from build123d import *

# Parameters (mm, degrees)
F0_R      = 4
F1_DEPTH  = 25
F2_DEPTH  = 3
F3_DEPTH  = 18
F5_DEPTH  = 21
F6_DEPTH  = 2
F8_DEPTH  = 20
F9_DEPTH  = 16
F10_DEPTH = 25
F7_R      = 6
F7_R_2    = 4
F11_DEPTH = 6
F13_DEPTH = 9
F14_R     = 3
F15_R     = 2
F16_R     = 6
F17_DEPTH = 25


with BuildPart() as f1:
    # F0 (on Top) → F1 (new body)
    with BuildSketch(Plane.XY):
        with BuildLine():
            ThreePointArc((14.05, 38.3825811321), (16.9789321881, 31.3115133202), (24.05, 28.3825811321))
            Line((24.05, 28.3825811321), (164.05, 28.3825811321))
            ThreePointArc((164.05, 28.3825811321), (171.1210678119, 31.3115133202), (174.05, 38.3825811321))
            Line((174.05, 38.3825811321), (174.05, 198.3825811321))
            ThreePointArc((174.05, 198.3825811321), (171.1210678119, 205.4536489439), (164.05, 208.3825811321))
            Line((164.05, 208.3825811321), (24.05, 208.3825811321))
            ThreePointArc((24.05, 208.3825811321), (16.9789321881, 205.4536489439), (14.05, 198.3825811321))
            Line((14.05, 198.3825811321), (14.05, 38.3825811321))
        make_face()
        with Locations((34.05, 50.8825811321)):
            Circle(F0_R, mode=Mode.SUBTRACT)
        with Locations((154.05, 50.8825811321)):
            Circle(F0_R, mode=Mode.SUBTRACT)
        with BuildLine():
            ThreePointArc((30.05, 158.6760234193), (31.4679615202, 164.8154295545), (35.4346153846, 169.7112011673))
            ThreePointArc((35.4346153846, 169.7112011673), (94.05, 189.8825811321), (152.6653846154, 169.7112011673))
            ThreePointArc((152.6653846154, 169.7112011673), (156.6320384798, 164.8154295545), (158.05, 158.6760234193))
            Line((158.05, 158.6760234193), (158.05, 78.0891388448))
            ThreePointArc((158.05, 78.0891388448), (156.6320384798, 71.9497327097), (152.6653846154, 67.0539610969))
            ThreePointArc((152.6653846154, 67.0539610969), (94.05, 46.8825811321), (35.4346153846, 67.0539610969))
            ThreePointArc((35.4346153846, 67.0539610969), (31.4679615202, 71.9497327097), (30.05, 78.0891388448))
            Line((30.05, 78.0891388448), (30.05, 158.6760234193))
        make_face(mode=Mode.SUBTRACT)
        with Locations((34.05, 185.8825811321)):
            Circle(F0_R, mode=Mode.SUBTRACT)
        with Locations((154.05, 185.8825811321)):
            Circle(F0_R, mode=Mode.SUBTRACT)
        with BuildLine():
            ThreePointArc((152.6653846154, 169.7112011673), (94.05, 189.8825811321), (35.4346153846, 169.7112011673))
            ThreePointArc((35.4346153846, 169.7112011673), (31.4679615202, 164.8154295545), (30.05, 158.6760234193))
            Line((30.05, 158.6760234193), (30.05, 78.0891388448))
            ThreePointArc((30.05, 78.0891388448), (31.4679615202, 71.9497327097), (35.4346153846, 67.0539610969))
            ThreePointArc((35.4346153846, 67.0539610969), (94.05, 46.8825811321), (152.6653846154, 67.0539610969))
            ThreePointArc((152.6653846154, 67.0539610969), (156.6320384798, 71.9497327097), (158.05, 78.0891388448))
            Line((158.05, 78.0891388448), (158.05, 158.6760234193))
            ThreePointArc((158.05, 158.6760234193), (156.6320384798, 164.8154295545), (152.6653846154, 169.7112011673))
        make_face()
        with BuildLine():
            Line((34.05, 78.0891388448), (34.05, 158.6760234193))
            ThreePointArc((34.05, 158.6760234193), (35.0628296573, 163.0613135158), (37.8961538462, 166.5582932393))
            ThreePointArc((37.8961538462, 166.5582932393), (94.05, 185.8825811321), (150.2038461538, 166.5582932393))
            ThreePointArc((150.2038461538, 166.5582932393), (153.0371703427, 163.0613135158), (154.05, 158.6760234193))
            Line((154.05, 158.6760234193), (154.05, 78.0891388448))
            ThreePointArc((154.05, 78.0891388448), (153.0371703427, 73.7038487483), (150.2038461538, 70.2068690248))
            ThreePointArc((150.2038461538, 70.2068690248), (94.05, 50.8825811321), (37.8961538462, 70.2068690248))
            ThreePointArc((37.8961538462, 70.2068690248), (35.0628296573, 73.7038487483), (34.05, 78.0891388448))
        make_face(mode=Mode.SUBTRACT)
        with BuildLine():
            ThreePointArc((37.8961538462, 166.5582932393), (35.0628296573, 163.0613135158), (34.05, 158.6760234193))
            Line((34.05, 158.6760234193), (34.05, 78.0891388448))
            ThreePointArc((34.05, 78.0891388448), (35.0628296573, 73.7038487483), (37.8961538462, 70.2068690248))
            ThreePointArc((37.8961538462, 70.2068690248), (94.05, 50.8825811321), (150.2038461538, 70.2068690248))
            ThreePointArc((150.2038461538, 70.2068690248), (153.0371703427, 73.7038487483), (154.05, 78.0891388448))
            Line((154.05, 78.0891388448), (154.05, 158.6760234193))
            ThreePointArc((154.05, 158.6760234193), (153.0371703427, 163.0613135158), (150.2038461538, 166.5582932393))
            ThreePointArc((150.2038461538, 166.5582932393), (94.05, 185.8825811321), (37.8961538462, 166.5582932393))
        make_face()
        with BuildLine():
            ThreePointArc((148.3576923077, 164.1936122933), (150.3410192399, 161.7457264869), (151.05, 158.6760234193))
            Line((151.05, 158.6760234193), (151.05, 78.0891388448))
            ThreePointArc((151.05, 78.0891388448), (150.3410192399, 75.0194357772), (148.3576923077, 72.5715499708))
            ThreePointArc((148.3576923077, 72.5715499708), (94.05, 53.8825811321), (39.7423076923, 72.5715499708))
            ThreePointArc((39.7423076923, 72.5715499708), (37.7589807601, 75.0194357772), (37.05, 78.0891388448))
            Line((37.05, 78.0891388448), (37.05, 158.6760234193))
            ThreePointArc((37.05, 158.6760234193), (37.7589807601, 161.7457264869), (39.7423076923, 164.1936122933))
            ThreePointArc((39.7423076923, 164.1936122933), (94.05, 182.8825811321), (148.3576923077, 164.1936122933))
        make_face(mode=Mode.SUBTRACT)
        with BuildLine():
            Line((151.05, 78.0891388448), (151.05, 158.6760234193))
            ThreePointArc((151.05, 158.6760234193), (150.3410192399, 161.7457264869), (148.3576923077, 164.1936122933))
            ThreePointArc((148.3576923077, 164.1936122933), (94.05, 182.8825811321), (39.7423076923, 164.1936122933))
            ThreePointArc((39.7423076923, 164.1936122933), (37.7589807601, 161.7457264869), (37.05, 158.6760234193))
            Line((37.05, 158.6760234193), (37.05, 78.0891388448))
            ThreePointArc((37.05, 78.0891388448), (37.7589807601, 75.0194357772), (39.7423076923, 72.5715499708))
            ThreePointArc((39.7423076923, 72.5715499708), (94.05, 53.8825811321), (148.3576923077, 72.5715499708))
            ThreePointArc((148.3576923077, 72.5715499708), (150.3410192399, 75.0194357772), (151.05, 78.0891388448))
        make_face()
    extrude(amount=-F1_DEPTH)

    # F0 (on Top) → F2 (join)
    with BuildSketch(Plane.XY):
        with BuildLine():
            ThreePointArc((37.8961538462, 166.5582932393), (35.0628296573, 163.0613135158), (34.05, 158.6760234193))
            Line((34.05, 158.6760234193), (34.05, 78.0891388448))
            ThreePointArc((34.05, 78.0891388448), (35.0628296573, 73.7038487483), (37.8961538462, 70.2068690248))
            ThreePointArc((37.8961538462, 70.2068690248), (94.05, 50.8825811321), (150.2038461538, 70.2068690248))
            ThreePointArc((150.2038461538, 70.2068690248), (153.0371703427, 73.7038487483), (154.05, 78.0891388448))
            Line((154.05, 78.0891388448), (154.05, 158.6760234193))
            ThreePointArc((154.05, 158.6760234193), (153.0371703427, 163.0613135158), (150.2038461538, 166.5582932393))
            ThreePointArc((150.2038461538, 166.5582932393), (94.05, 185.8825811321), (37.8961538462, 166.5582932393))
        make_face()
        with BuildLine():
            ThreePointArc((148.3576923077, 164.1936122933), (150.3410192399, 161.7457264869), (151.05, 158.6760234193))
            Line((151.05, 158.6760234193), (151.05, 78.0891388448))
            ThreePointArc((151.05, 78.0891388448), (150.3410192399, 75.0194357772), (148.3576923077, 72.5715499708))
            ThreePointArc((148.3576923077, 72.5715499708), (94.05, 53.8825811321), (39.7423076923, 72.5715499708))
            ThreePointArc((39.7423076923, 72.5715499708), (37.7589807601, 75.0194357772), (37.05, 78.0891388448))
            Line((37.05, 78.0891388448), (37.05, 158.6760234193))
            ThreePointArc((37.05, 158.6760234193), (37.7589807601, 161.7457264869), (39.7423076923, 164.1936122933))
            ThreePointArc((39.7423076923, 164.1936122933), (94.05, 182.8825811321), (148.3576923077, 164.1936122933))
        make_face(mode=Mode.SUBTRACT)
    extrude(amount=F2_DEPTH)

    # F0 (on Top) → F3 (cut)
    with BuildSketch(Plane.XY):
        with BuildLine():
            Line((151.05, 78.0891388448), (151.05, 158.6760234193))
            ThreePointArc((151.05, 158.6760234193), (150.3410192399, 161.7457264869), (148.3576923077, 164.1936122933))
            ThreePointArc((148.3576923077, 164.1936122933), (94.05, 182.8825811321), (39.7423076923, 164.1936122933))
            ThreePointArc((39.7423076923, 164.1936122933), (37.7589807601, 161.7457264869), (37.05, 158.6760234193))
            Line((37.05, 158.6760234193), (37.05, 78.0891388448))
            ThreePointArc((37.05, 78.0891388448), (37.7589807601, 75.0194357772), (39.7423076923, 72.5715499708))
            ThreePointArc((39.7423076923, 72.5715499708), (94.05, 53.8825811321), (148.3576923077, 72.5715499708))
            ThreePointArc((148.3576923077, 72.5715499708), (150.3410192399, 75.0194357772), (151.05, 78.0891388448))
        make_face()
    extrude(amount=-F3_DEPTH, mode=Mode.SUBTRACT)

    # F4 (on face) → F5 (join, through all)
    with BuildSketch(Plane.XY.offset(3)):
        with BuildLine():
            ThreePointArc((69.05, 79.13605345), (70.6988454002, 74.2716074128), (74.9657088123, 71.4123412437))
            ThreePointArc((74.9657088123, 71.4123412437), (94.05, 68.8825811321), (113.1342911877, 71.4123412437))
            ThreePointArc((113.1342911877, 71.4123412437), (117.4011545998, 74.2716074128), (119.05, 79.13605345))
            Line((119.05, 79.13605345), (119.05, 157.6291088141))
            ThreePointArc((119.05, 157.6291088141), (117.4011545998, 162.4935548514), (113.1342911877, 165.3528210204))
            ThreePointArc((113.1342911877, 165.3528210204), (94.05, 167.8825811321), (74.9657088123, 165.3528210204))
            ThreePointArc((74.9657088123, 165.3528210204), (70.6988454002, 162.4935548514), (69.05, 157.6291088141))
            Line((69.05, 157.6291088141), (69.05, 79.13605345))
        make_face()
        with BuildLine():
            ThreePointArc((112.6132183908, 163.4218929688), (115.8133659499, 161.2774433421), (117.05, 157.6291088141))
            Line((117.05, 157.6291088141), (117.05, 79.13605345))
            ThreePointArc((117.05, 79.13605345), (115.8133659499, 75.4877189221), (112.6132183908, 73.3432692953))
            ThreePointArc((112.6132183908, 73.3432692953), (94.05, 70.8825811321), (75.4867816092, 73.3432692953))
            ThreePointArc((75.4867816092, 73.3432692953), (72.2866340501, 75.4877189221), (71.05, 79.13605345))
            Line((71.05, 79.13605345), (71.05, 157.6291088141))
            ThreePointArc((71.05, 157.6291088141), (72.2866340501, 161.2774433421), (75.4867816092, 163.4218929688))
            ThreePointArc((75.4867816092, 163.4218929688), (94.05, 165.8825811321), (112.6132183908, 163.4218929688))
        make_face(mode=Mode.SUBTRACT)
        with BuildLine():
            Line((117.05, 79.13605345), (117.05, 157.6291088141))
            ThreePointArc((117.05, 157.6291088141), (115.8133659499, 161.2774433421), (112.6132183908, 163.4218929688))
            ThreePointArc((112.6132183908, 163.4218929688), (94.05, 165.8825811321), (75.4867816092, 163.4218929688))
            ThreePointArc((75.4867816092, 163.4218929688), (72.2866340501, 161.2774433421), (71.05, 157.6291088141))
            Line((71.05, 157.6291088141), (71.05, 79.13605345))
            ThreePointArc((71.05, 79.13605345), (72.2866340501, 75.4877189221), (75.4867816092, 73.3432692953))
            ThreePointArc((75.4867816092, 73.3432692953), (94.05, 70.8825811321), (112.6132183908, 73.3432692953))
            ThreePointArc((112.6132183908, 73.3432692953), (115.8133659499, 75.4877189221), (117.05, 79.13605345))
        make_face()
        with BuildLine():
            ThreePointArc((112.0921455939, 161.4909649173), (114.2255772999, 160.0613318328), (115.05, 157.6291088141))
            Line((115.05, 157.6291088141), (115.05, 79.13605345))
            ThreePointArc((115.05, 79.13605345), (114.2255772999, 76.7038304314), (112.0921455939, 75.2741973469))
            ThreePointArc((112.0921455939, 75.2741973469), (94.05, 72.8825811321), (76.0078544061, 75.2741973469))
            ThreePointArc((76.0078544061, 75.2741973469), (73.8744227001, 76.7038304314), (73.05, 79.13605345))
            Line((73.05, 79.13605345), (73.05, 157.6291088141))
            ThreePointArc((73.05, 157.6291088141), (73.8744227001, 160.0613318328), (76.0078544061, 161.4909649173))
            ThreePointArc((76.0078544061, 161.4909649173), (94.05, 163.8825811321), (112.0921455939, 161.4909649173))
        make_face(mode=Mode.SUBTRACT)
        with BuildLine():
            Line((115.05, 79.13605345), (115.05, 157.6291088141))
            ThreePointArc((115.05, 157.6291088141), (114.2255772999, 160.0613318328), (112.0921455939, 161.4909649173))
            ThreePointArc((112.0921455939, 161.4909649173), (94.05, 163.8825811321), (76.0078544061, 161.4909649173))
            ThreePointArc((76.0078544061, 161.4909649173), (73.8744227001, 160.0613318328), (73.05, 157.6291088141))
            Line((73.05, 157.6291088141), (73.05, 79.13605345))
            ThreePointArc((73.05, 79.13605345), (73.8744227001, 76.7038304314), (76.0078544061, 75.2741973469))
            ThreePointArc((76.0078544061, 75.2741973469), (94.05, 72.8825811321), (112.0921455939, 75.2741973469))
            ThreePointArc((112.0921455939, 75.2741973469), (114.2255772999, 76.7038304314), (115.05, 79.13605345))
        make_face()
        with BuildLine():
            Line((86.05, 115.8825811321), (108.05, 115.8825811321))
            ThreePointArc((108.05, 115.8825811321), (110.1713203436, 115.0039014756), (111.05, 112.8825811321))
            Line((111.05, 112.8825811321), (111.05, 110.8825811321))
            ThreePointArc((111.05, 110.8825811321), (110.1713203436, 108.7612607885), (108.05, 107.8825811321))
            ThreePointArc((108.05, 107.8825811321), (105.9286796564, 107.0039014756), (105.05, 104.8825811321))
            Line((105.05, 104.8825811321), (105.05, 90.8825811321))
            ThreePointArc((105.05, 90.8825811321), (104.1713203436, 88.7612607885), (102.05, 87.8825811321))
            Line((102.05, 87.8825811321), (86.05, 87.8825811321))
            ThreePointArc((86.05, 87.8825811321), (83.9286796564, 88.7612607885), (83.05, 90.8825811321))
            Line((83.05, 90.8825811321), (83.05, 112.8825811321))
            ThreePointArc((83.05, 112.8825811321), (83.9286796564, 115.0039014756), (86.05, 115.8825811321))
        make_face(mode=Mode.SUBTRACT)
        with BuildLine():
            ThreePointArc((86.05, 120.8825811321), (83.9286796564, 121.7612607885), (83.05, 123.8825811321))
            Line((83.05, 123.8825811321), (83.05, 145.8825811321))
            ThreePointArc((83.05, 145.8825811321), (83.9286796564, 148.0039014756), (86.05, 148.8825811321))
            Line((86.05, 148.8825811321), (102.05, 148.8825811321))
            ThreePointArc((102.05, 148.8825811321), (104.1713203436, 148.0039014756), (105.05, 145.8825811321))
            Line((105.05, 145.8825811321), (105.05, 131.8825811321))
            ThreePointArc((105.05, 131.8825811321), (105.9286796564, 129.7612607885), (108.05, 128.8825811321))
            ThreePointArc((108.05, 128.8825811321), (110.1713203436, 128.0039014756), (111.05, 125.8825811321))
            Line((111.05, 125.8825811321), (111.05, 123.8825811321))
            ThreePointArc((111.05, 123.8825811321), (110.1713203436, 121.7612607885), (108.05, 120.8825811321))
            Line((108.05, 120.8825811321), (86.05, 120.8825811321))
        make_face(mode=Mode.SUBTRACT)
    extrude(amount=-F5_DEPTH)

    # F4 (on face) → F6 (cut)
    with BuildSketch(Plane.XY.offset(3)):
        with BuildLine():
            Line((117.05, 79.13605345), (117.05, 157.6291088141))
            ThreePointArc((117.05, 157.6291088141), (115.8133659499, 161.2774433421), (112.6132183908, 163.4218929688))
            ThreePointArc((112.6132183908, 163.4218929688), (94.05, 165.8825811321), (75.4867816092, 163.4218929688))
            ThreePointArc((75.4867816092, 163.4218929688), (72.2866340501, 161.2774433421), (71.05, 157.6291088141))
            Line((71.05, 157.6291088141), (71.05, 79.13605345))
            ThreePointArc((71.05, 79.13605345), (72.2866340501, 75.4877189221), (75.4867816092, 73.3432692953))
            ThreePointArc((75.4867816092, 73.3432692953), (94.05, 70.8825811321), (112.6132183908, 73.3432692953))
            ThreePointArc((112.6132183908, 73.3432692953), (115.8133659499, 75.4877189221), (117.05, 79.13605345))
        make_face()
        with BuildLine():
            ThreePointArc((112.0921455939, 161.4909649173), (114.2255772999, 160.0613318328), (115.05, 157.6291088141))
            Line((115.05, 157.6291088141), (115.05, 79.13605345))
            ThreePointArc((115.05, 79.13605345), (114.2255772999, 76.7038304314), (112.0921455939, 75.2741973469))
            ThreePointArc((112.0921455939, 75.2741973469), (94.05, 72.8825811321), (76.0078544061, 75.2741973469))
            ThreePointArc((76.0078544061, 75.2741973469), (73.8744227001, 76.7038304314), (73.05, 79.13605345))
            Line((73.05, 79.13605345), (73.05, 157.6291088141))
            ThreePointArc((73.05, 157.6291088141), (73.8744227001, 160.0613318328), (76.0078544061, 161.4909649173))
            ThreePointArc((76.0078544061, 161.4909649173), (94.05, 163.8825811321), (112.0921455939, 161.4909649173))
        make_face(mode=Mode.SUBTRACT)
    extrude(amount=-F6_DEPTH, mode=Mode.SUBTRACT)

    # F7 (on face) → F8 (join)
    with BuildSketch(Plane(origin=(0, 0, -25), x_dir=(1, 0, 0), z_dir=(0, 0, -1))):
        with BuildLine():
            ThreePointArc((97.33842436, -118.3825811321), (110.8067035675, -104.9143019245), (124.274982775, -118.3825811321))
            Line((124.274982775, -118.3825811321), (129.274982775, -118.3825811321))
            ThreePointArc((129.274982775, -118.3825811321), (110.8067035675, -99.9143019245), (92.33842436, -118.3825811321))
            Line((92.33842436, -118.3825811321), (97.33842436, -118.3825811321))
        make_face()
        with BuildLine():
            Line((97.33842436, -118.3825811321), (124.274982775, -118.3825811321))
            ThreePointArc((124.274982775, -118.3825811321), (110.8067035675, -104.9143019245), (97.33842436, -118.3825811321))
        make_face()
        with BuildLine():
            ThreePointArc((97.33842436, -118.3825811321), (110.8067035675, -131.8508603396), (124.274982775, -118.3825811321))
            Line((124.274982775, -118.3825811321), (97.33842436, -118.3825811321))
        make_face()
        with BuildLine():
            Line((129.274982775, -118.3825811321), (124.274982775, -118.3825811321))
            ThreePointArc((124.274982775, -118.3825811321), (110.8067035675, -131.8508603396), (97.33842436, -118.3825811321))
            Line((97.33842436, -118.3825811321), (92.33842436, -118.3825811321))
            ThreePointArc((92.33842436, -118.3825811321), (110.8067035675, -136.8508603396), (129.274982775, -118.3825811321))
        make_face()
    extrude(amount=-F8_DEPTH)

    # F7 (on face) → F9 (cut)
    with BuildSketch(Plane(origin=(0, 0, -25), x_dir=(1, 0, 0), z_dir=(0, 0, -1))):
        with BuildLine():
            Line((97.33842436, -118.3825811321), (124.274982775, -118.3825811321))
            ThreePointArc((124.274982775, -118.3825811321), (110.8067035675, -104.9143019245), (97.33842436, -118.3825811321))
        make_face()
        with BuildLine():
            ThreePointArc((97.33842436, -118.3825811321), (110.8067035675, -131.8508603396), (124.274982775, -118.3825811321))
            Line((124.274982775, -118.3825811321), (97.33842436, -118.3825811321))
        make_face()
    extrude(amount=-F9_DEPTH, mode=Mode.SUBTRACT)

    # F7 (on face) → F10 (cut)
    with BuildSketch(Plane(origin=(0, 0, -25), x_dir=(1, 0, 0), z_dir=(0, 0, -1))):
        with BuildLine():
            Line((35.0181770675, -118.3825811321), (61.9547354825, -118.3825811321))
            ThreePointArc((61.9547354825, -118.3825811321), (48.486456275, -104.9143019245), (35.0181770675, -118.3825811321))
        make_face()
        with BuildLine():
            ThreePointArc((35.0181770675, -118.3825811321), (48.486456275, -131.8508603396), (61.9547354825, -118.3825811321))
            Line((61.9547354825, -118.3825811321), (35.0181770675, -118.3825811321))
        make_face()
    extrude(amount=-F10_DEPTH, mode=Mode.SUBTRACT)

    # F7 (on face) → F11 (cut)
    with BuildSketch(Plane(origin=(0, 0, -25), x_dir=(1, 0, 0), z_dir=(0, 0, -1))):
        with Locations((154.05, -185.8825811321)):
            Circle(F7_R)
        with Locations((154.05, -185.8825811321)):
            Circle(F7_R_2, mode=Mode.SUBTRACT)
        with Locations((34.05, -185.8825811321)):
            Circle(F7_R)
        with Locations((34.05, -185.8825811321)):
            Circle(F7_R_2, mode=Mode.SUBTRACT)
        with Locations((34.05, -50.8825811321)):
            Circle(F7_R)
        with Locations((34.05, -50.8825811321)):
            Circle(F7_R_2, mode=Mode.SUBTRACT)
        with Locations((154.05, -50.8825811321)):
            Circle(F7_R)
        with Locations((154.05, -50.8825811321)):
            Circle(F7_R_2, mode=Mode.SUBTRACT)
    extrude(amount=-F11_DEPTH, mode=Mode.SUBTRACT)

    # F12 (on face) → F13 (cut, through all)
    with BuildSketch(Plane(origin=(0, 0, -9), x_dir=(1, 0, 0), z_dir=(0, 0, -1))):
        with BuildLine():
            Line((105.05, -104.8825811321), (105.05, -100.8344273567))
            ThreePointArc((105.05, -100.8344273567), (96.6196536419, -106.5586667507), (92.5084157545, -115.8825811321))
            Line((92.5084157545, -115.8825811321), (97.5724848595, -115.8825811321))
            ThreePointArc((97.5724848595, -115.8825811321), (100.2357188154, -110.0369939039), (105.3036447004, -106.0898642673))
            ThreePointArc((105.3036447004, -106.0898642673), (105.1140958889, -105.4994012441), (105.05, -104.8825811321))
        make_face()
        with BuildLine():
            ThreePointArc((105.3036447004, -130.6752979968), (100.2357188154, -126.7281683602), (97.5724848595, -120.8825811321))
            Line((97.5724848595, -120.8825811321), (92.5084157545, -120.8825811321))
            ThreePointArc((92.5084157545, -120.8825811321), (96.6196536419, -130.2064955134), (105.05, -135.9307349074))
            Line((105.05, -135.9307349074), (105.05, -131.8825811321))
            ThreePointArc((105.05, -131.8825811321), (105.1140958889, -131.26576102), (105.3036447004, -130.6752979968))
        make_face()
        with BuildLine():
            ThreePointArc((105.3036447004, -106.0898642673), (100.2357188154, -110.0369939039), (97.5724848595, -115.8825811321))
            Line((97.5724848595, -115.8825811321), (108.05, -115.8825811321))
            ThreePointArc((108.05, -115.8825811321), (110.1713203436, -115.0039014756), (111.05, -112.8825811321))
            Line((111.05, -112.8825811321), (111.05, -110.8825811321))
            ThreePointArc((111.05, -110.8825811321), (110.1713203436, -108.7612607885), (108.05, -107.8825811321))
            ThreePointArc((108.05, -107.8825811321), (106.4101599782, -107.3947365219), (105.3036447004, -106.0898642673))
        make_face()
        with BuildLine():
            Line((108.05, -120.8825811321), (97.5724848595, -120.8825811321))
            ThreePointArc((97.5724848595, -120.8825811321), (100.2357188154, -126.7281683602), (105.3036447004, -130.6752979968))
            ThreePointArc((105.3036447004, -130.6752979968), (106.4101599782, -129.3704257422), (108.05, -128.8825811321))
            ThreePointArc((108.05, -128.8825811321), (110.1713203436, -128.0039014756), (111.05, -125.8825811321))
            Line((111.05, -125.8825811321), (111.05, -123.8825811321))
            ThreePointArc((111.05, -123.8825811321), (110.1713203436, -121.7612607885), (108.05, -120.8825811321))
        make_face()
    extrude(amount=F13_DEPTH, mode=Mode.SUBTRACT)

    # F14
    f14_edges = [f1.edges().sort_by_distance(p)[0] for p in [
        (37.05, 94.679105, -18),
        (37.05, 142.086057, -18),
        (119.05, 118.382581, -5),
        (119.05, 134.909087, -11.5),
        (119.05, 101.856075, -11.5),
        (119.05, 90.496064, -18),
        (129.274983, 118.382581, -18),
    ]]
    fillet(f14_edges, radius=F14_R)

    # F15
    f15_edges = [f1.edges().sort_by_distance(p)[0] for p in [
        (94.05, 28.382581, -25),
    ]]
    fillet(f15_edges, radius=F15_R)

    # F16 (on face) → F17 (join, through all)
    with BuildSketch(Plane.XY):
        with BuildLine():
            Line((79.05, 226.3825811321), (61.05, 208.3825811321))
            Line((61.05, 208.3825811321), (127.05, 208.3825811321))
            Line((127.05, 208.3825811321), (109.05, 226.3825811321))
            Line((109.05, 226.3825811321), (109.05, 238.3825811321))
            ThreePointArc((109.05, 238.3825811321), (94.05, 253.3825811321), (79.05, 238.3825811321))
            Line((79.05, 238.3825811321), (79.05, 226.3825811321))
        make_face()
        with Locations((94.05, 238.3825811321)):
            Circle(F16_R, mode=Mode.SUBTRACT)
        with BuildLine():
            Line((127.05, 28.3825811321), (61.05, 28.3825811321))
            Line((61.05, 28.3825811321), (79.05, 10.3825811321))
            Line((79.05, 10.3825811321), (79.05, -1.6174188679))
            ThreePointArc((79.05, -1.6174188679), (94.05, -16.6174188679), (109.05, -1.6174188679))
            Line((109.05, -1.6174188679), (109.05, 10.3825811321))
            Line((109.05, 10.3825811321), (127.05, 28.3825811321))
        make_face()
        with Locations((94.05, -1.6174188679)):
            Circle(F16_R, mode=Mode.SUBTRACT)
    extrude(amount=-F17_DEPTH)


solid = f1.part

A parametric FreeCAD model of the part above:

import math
import FreeCAD as App
import Part
import Sketcher

V = App.Vector
Q = App.Units.Quantity


def edges_at(feature, points):
    """Names of the edges that pass closest to the given points."""
    edges = feature.Shape.Edges
    near = lambda p: min(range(len(edges)), key=lambda i: edges[i].distToShape(Part.Vertex(*p))[0])
    return sorted({f"Edge{near(p) + 1}" for p in points})

doc = App.newDocument("Part")
body = doc.addObject("PartDesign::Body", "Body")

# Sketch on XY plane
sketch1 = body.newObject("Sketcher::SketchObject", "Sketch")
sketch1.AttachmentSupport = (doc.getObject("XY_Plane"), [""])
sketch1.MapMode = "FlatFace"
sketch1.addGeometry([
    Part.ArcOfCircle(Part.Circle(V(24.1, 38.4, 0), V(0, 0, 1), 10), math.radians(180), math.radians(270)),  # 0
    Part.LineSegment(V(24.1, 28.4, 0), V(164.1, 28.4, 0)),  # 1
    Part.ArcOfCircle(Part.Circle(V(164.1, 38.4, 0), V(0, 0, 1), 10), math.radians(-90), math.radians(0)),  # 2
    Part.LineSegment(V(174.1, 38.4, 0), V(174.1, 198.4, 0)),  # 3
    Part.ArcOfCircle(Part.Circle(V(164.1, 198.4, 0), V(0, 0, 1), 10), math.radians(0), math.radians(90)),  # 4
    Part.LineSegment(V(164.1, 208.4, 0), V(24.1, 208.4, 0)),  # 5
    Part.ArcOfCircle(Part.Circle(V(24.1, 198.4, 0), V(0, 0, 1), 10), math.radians(90), math.radians(180)),  # 6
    Part.LineSegment(V(14.1, 198.4, 0), V(14.1, 38.4, 0)),  # 7
    Part.Circle(V(34, 50.9, 0), V(0, 0, 1), 4),  # 8
    Part.Circle(V(154.1, 50.9, 0), V(0, 0, 1), 4),  # 9
    Part.Circle(V(34, 185.9, 0), V(0, 0, 1), 4),  # 10
    Part.Circle(V(154.1, 185.9, 0), V(0, 0, 1), 4),  # 11
], False)
sketch1.addConstraint([
    Sketcher.Constraint("Tangent", 0, 2, 1, 1),
    Sketcher.Constraint("Tangent", 1, 2, 2, 1),
    Sketcher.Constraint("Tangent", 2, 2, 3, 1),
    Sketcher.Constraint("Tangent", 3, 2, 4, 1),
    Sketcher.Constraint("Tangent", 4, 2, 5, 1),
    Sketcher.Constraint("Tangent", 5, 2, 6, 1),
    Sketcher.Constraint("Tangent", 6, 2, 7, 1),
    Sketcher.Constraint("Tangent", 7, 2, 0, 1),
    Sketcher.Constraint("Horizontal", 1),
    Sketcher.Constraint("Vertical", 3),
    Sketcher.Constraint("Horizontal", 5),
    Sketcher.Constraint("Vertical", 7),
    Sketcher.Constraint("Equal", 0, 2),
    Sketcher.Constraint("Equal", 2, 4),
    Sketcher.Constraint("Equal", 4, 6),
    Sketcher.Constraint("Equal", 8, 9),
    Sketcher.Constraint("Equal", 9, 10),
    Sketcher.Constraint("Equal", 10, 11),
    Sketcher.Constraint("Horizontal", 8, 3, 9, 3),
    Sketcher.Constraint("Horizontal", 10, 3, 11, 3),
    Sketcher.Constraint("Vertical", 8, 3, 10, 3),
    Sketcher.Constraint("Vertical", 9, 3, 11, 3),
    Sketcher.Constraint("Diameter", 8, Q("8 mm")),
    Sketcher.Constraint("Radius", 0, Q("10 mm")),
    Sketcher.Constraint("DistanceX", 1, 1, 1, 2, Q("140 mm")),
    Sketcher.Constraint("DistanceY", 3, 1, 3, 2, Q("160 mm")),
    Sketcher.Constraint("DistanceX", 0, 3, 8, 3, Q("10 mm")),
    Sketcher.Constraint("DistanceX", 9, 3, 2, 3, Q("10 mm")),
    Sketcher.Constraint("DistanceY", 8, 3, 10, 3, Q("135 mm")),
    Sketcher.Constraint("DistanceY", 0, 3, 8, 3, Q("12.5 mm")),
    Sketcher.Constraint("DistanceX", -1, 1, 0, 3, Q("24.05 mm")),
    Sketcher.Constraint("DistanceY", -1, 1, 0, 3, Q("38.382581 mm")),
])
pad1 = body.newObject("PartDesign::Pad", "Pad")
pad1.Profile = sketch1
pad1.Length = 25
pad1.Reversed = True

# Sketch on XY plane
sketch2 = body.newObject("Sketcher::SketchObject", "Sketch001")
sketch2.AttachmentSupport = (doc.getObject("XY_Plane"), [""])
sketch2.MapMode = "FlatFace"
sketch2.addGeometry([
    Part.ArcOfCircle(Part.Circle(V(44, 159, 0), V(0, 0, 1), 10), math.radians(128), math.radians(180)),  # 0
    Part.LineSegment(V(34, 159, 0), V(34, 78, 0)),  # 1
    Part.ArcOfCircle(Part.Circle(V(44, 78, 0), V(0, 0, 1), 10), math.radians(180), math.radians(232)),  # 2
    Part.ArcOfCircle(Part.Circle(V(94, 142, 0), V(0, 0, 1), 91), math.radians(-128), math.radians(-52)),  # 3
    Part.ArcOfCircle(Part.Circle(V(144, 78, 0), V(0, 0, 1), 10), math.radians(-52), math.radians(0)),  # 4
    Part.LineSegment(V(154, 78, 0), V(154, 159, 0)),  # 5
    Part.ArcOfCircle(Part.Circle(V(144, 159, 0), V(0, 0, 1), 10), math.radians(0), math.radians(52)),  # 6
    Part.ArcOfCircle(Part.Circle(V(94, 95, 0), V(0, 0, 1), 91), math.radians(52), math.radians(128)),  # 7
    Part.ArcOfCircle(Part.Circle(V(94, 95, 0), V(0, 0, 1), 88), math.radians(52), math.radians(128)),  # 8
    Part.ArcOfCircle(Part.Circle(V(144, 159, 0), V(0, 0, 1), 7), math.radians(0), math.radians(52)),  # 9
    Part.LineSegment(V(151, 159, 0), V(151, 78, 0)),  # 10
    Part.ArcOfCircle(Part.Circle(V(144, 78, 0), V(0, 0, 1), 7), math.radians(-52), math.radians(0)),  # 11
    Part.ArcOfCircle(Part.Circle(V(94, 142, 0), V(0, 0, 1), 88), math.radians(-128), math.radians(-52)),  # 12
    Part.ArcOfCircle(Part.Circle(V(44, 78, 0), V(0, 0, 1), 7), math.radians(180), math.radians(232)),  # 13
    Part.LineSegment(V(37, 78, 0), V(37, 159, 0)),  # 14
    Part.ArcOfCircle(Part.Circle(V(44, 159, 0), V(0, 0, 1), 7), math.radians(128), math.radians(180)),  # 15
], False)
sketch2.addConstraint([
    Sketcher.Constraint("Tangent", 0, 2, 1, 1),
    Sketcher.Constraint("Tangent", 1, 2, 2, 1),
    Sketcher.Constraint("Tangent", 2, 2, 3, 1),
    Sketcher.Constraint("Tangent", 3, 2, 4, 1),
    Sketcher.Constraint("Tangent", 4, 2, 5, 1),
    Sketcher.Constraint("Tangent", 5, 2, 6, 1),
    Sketcher.Constraint("Tangent", 6, 2, 7, 1),
    Sketcher.Constraint("Tangent", 7, 2, 0, 1),
    Sketcher.Constraint("Tangent", 8, 1, 9, 2),
    Sketcher.Constraint("Tangent", 9, 1, 10, 1),
    Sketcher.Constraint("Tangent", 10, 2, 11, 2),
    Sketcher.Constraint("Tangent", 11, 1, 12, 2),
    Sketcher.Constraint("Tangent", 12, 1, 13, 2),
    Sketcher.Constraint("Tangent", 13, 1, 14, 1),
    Sketcher.Constraint("Tangent", 14, 2, 15, 2),
    Sketcher.Constraint("Tangent", 15, 1, 8, 2),
    Sketcher.Constraint("Vertical", 1),
    Sketcher.Constraint("Vertical", 5),
    Sketcher.Constraint("Vertical", 10),
    Sketcher.Constraint("Vertical", 14),
    Sketcher.Constraint("Coincident", 8, 3, 7, 3),
    Sketcher.Constraint("Coincident", 9, 3, 6, 3),
    Sketcher.Constraint("Coincident", 11, 3, 4, 3),
    Sketcher.Constraint("Coincident", 12, 3, 3, 3),
    Sketcher.Constraint("Coincident", 13, 3, 2, 3),
    Sketcher.Constraint("Equal", 0, 2),
    Sketcher.Constraint("Equal", 2, 4),
    Sketcher.Constraint("Equal", 4, 6),
    Sketcher.Constraint("Equal", 3, 7),
    Sketcher.Constraint("Equal", 13, 15),
    Sketcher.Constraint("Horizontal", 2, 3, 4, 3),
    Sketcher.Constraint("Horizontal", 0, 3, 6, 3),
    Sketcher.Constraint("Radius", 0, Q("10 mm")),
    Sketcher.Constraint("Radius", 9, Q("7 mm")),
    Sketcher.Constraint("Radius", 3, Q("91.25 mm")),
    Sketcher.Constraint("DistanceX", 0, 3, 3, 3, Q("50 mm")),
    Sketcher.Constraint("DistanceY", 7, 3, 3, 3, Q("47.5 mm")),
    Sketcher.Constraint("DistanceX", -1, 1, 0, 3, Q("44.05 mm")),
    Sketcher.Constraint("DistanceY", -1, 1, 2, 3, Q("78.089139 mm")),
])
pad2 = body.newObject("PartDesign::Pad", "Pad001")
pad2.Profile = sketch2
pad2.Length = 3

# Sketch on XY plane
sketch3 = body.newObject("Sketcher::SketchObject", "Sketch002")
sketch3.AttachmentSupport = (doc.getObject("XY_Plane"), [""])
sketch3.MapMode = "FlatFace"
sketch3.addGeometry([
    Part.LineSegment(V(151, 78, 0), V(151, 159, 0)),  # 0
    Part.ArcOfCircle(Part.Circle(V(144, 159, 0), V(0, 0, 1), 7), math.radians(0), math.radians(52)),  # 1
    Part.ArcOfCircle(Part.Circle(V(94, 95, 0), V(0, 0, 1), 88), math.radians(52), math.radians(128)),  # 2
    Part.ArcOfCircle(Part.Circle(V(44, 159, 0), V(0, 0, 1), 7), math.radians(128), math.radians(180)),  # 3
    Part.LineSegment(V(37, 159, 0), V(37, 78, 0)),  # 4
    Part.ArcOfCircle(Part.Circle(V(44, 78, 0), V(0, 0, 1), 7), math.radians(180), math.radians(232)),  # 5
    Part.ArcOfCircle(Part.Circle(V(94, 142, 0), V(0, 0, 1), 88), math.radians(-128), math.radians(-52)),  # 6
    Part.ArcOfCircle(Part.Circle(V(144, 78, 0), V(0, 0, 1), 7), math.radians(-52), math.radians(0)),  # 7
], False)
sketch3.addConstraint([
    Sketcher.Constraint("Tangent", 0, 2, 1, 1),
    Sketcher.Constraint("Tangent", 1, 2, 2, 1),
    Sketcher.Constraint("Tangent", 2, 2, 3, 1),
    Sketcher.Constraint("Tangent", 3, 2, 4, 1),
    Sketcher.Constraint("Tangent", 4, 2, 5, 1),
    Sketcher.Constraint("Tangent", 5, 2, 6, 1),
    Sketcher.Constraint("Tangent", 6, 2, 7, 1),
    Sketcher.Constraint("Tangent", 7, 2, 0, 1),
    Sketcher.Constraint("Vertical", 0),
    Sketcher.Constraint("Vertical", 4),
    Sketcher.Constraint("Equal", 1, 3),
    Sketcher.Constraint("Equal", 3, 5),
    Sketcher.Constraint("Equal", 2, 6),
    Sketcher.Constraint("Equal", 5, 7),
    Sketcher.Constraint("Horizontal", 1, 3, 3, 3),
    Sketcher.Constraint("Horizontal", 5, 3, 7, 3),
    Sketcher.Constraint("Radius", 1, Q("7 mm")),
    Sketcher.Constraint("Radius", 2, Q("88.25 mm")),
    Sketcher.Constraint("DistanceX", 2, 3, 1, 3, Q("50 mm")),
    Sketcher.Constraint("DistanceY", 2, 3, 6, 3, Q("47.5 mm")),
    Sketcher.Constraint("DistanceX", -1, 1, 1, 3, Q("144.05 mm")),
    Sketcher.Constraint("DistanceY", -1, 1, 2, 3, Q("94.632581 mm")),
])
pocket1 = body.newObject("PartDesign::Pocket", "Pocket")
pocket1.Profile = sketch3
pocket1.Length = 18

# Sketch on XY plane
sketch4 = body.newObject("Sketcher::SketchObject", "Sketch003")
sketch4.AttachmentSupport = (doc.getObject("XY_Plane"), [""])
sketch4.MapMode = "FlatFace"
sketch4.AttachmentOffset = App.Placement(V(0, 0, 3), App.Rotation())
sketch4.addGeometry([
    Part.ArcOfCircle(Part.Circle(V(77, 79.1, 0), V(0, 0, 1), 8), math.radians(180), math.radians(255)),  # 0
    Part.ArcOfCircle(Part.Circle(V(94, 142.1, 0), V(0, 0, 1), 73.3), math.radians(-105), math.radians(-75)),  # 1
    Part.ArcOfCircle(Part.Circle(V(111, 79.1, 0), V(0, 0, 1), 8), math.radians(-75), math.radians(0)),  # 2
    Part.LineSegment(V(119, 79.1, 0), V(119, 157.6, 0)),  # 3
    Part.ArcOfCircle(Part.Circle(V(111, 157.6, 0), V(0, 0, 1), 8), math.radians(0), math.radians(75)),  # 4
    Part.ArcOfCircle(Part.Circle(V(94, 94.6, 0), V(0, 0, 1), 73.2), math.radians(75), math.radians(105)),  # 5
    Part.ArcOfCircle(Part.Circle(V(77, 157.6, 0), V(0, 0, 1), 8), math.radians(105), math.radians(180)),  # 6
    Part.LineSegment(V(69, 157.6, 0), V(69, 79.1, 0)),  # 7
    Part.ArcOfCircle(Part.Circle(V(86, 112.9, 0), V(0, 0, 1), 3), math.radians(90), math.radians(180)),  # 8
    Part.LineSegment(V(86, 115.9, 0), V(108, 115.9, 0)),  # 9
    Part.ArcOfCircle(Part.Circle(V(108, 112.9, 0), V(0, 0, 1), 3), math.radians(0), math.radians(90)),  # 10
    Part.LineSegment(V(111, 112.9, 0), V(111, 110.9, 0)),  # 11
    Part.ArcOfCircle(Part.Circle(V(108, 110.9, 0), V(0, 0, 1), 3), math.radians(-90), math.radians(0)),  # 12
    Part.ArcOfCircle(Part.Circle(V(108, 104.9, 0), V(0, 0, 1), 3), math.radians(90), math.radians(180)),  # 13
    Part.LineSegment(V(105, 104.9, 0), V(105, 90.9, 0)),  # 14
    Part.ArcOfCircle(Part.Circle(V(102, 90.9, 0), V(0, 0, 1), 3), math.radians(-90), math.radians(0)),  # 15
    Part.LineSegment(V(102, 87.9, 0), V(86, 87.9, 0)),  # 16
    Part.ArcOfCircle(Part.Circle(V(86, 90.9, 0), V(0, 0, 1), 3), math.radians(180), math.radians(270)),  # 17
    Part.LineSegment(V(83, 90.9, 0), V(83, 112.9, 0)),  # 18
    Part.LineSegment(V(108, 120.9, 0), V(86, 120.9, 0)),  # 19
    Part.ArcOfCircle(Part.Circle(V(86, 123.9, 0), V(0, 0, 1), 3), math.radians(180), math.radians(270)),  # 20
    Part.LineSegment(V(83, 123.9, 0), V(83, 145.9, 0)),  # 21
    Part.ArcOfCircle(Part.Circle(V(86, 145.9, 0), V(0, 0, 1), 3), math.radians(90), math.radians(180)),  # 22
    Part.LineSegment(V(86, 148.9, 0), V(102, 148.9, 0)),  # 23
    Part.ArcOfCircle(Part.Circle(V(102, 145.9, 0), V(0, 0, 1), 3), math.radians(0), math.radians(90)),  # 24
    Part.LineSegment(V(105, 145.9, 0), V(105, 131.9, 0)),  # 25
    Part.ArcOfCircle(Part.Circle(V(108, 131.9, 0), V(0, 0, 1), 3), math.radians(180), math.radians(270)),  # 26
    Part.ArcOfCircle(Part.Circle(V(108, 125.9, 0), V(0, 0, 1), 3), math.radians(0), math.radians(90)),  # 27
    Part.LineSegment(V(111, 125.9, 0), V(111, 123.9, 0)),  # 28
    Part.ArcOfCircle(Part.Circle(V(108, 123.9, 0), V(0, 0, 1), 3), math.radians(-90), math.radians(0)),  # 29
], False)
sketch4.addConstraint([
    Sketcher.Constraint("Tangent", 0, 2, 1, 1),
    Sketcher.Constraint("Tangent", 1, 2, 2, 1),
    Sketcher.Constraint("Tangent", 2, 2, 3, 1),
    Sketcher.Constraint("Tangent", 3, 2, 4, 1),
    Sketcher.Constraint("Tangent", 4, 2, 5, 1),
    Sketcher.Constraint("Tangent", 5, 2, 6, 1),
    Sketcher.Constraint("Tangent", 6, 2, 7, 1),
    Sketcher.Constraint("Tangent", 7, 2, 0, 1),
    Sketcher.Constraint("Tangent", 8, 1, 9, 1),
    Sketcher.Constraint("Tangent", 9, 2, 10, 2),
    Sketcher.Constraint("Tangent", 10, 1, 11, 1),
    Sketcher.Constraint("Tangent", 11, 2, 12, 2),
    Sketcher.Constraint("Tangent", 12, 1, 13, 1),
    Sketcher.Constraint("Tangent", 13, 2, 14, 1),
    Sketcher.Constraint("Tangent", 14, 2, 15, 2),
    Sketcher.Constraint("Tangent", 15, 1, 16, 1),
    Sketcher.Constraint("Tangent", 16, 2, 17, 2),
    Sketcher.Constraint("Tangent", 17, 1, 18, 1),
    Sketcher.Constraint("Tangent", 18, 2, 8, 2),
    Sketcher.Constraint("Tangent", 19, 2, 20, 2),
    Sketcher.Constraint("Tangent", 20, 1, 21, 1),
    Sketcher.Constraint("Tangent", 21, 2, 22, 2),
    Sketcher.Constraint("Tangent", 22, 1, 23, 1),
    Sketcher.Constraint("Tangent", 23, 2, 24, 2),
    Sketcher.Constraint("Tangent", 24, 1, 25, 1),
    Sketcher.Constraint("Tangent", 25, 2, 26, 1),
    Sketcher.Constraint("Tangent", 26, 2, 27, 2),
    Sketcher.Constraint("Tangent", 27, 1, 28, 1),
    Sketcher.Constraint("Tangent", 28, 2, 29, 2),
    Sketcher.Constraint("Tangent", 29, 1, 19, 1),
    Sketcher.Constraint("Vertical", 3),
    Sketcher.Constraint("Vertical", 7),
    Sketcher.Constraint("Horizontal", 9),
    Sketcher.Constraint("Vertical", 11),
    Sketcher.Constraint("Vertical", 14),
    Sketcher.Constraint("Horizontal", 16),
    Sketcher.Constraint("Vertical", 18),
    Sketcher.Constraint("Horizontal", 19),
    Sketcher.Constraint("Vertical", 21),
    Sketcher.Constraint("Horizontal", 23),
    Sketcher.Constraint("Vertical", 25),
    Sketcher.Constraint("Vertical", 28),
    Sketcher.Constraint("Equal", 0, 2),
    Sketcher.Constraint("Equal", 2, 4),
    Sketcher.Constraint("Equal", 1, 5),
    Sketcher.Constraint("Equal", 4, 6),
    Sketcher.Constraint("Equal", 8, 10),
    Sketcher.Constraint("Equal", 10, 12),
    Sketcher.Constraint("Equal", 12, 13),
    Sketcher.Constraint("Equal", 13, 15),
    Sketcher.Constraint("Equal", 15, 17),
    Sketcher.Constraint("Equal", 17, 20),
    Sketcher.Constraint("Equal", 20, 22),
    Sketcher.Constraint("Equal", 22, 24),
    Sketcher.Constraint("Equal", 24, 26),
    Sketcher.Constraint("Equal", 26, 27),
    Sketcher.Constraint("Equal", 27, 29),
    Sketcher.Constraint("Horizontal", 0, 3, 2, 3),
    Sketcher.Constraint("Horizontal", 4, 3, 6, 3),
    Sketcher.Constraint("Vertical", 12, 3, 13, 3),
    Sketcher.Constraint("Vertical", 17, 3, 20, 3),
    Sketcher.Constraint("Vertical", 15, 3, 24, 3),
    Sketcher.Constraint("Vertical", 26, 3, 27, 3),
    Sketcher.Constraint("Vertical", 4, 3, 10, 1),
    Sketcher.Constraint("Equal", 19, 18),
    Sketcher.Constraint("Equal", 18, 21),
    Sketcher.Constraint("Equal", 14, 25),
    Sketcher.Constraint("Radius", 0, Q("8 mm")),
    Sketcher.Constraint("Radius", 8, Q("3 mm")),
    Sketcher.Constraint("DistanceX", 9, 1, 9, 2, Q("22 mm")),
    Sketcher.Constraint("DistanceY", 11, 2, 11, 1, Q("2 mm")),
    Sketcher.Constraint("Radius", 1, Q("73.25 mm")),
    Sketcher.Constraint("DistanceX", 0, 3, 1, 3, Q("17 mm")),
    Sketcher.Constraint("DistanceY", 8, 3, 20, 3, Q("11 mm")),
    Sketcher.Constraint("DistanceY", 5, 3, 1, 3, Q("47.5 mm")),
    Sketcher.Constraint("DistanceX", -1, 1, 0, 3, Q("77.05 mm")),
    Sketcher.Constraint("DistanceY", 5, 3, 8, 3, Q("18.25 mm")),
    Sketcher.Constraint("DistanceY", -1, 1, 1, 3, Q("142.132581 mm")),
])
pad3 = body.newObject("PartDesign::Pad", "Pad002")
pad3.Profile = sketch4
pad3.Type = "UpToLast"
pad3.Reversed = True

# Sketch on XY plane
sketch5 = body.newObject("Sketcher::SketchObject", "Sketch004")
sketch5.AttachmentSupport = (doc.getObject("XY_Plane"), [""])
sketch5.MapMode = "FlatFace"
sketch5.AttachmentOffset = App.Placement(V(0, 0, 3), App.Rotation())
sketch5.addGeometry([
    Part.LineSegment(V(117, 79.1, 0), V(117, 157.6, 0)),  # 0
    Part.ArcOfCircle(Part.Circle(V(111, 157.6, 0), V(0, 0, 1), 6), math.radians(0), math.radians(75)),  # 1
    Part.ArcOfCircle(Part.Circle(V(94, 94.6, 0), V(0, 0, 1), 71.2), math.radians(75), math.radians(105)),  # 2
    Part.ArcOfCircle(Part.Circle(V(77, 157.6, 0), V(0, 0, 1), 6), math.radians(105), math.radians(180)),  # 3
    Part.LineSegment(V(71, 157.6, 0), V(71, 79.1, 0)),  # 4
    Part.ArcOfCircle(Part.Circle(V(77, 79.1, 0), V(0, 0, 1), 6), math.radians(180), math.radians(255)),  # 5
    Part.ArcOfCircle(Part.Circle(V(94, 142.1, 0), V(0, 0, 1), 71.3), math.radians(-105), math.radians(-75)),  # 6
    Part.ArcOfCircle(Part.Circle(V(111, 79.1, 0), V(0, 0, 1), 6), math.radians(-75), math.radians(0)),  # 7
    Part.ArcOfCircle(Part.Circle(V(94, 94.6, 0), V(0, 0, 1), 69.2), math.radians(75), math.radians(105)),  # 8
    Part.ArcOfCircle(Part.Circle(V(111, 157.6, 0), V(0, 0, 1), 4), math.radians(0), math.radians(75)),  # 9
    Part.LineSegment(V(115, 157.6, 0), V(115, 79.1, 0)),  # 10
    Part.ArcOfCircle(Part.Circle(V(111, 79.1, 0), V(0, 0, 1), 4), math.radians(-75), math.radians(0)),  # 11
    Part.ArcOfCircle(Part.Circle(V(94, 142.1, 0), V(0, 0, 1), 69.2), math.radians(-105), math.radians(-75)),  # 12
    Part.ArcOfCircle(Part.Circle(V(77, 79.1, 0), V(0, 0, 1), 4), math.radians(180), math.radians(255)),  # 13
    Part.LineSegment(V(73, 79.1, 0), V(73, 157.6, 0)),  # 14
    Part.ArcOfCircle(Part.Circle(V(77, 157.6, 0), V(0, 0, 1), 4), math.radians(105), math.radians(180)),  # 15
], False)
sketch5.addConstraint([
    Sketcher.Constraint("Tangent", 0, 2, 1, 1),
    Sketcher.Constraint("Tangent", 1, 2, 2, 1),
    Sketcher.Constraint("Tangent", 2, 2, 3, 1),
    Sketcher.Constraint("Tangent", 3, 2, 4, 1),
    Sketcher.Constraint("Tangent", 4, 2, 5, 1),
    Sketcher.Constraint("Tangent", 5, 2, 6, 1),
    Sketcher.Constraint("Tangent", 6, 2, 7, 1),
    Sketcher.Constraint("Tangent", 7, 2, 0, 1),
    Sketcher.Constraint("Tangent", 8, 1, 9, 2),
    Sketcher.Constraint("Tangent", 9, 1, 10, 1),
    Sketcher.Constraint("Tangent", 10, 2, 11, 2),
    Sketcher.Constraint("Tangent", 11, 1, 12, 2),
    Sketcher.Constraint("Tangent", 12, 1, 13, 2),
    Sketcher.Constraint("Tangent", 13, 1, 14, 1),
    Sketcher.Constraint("Tangent", 14, 2, 15, 2),
    Sketcher.Constraint("Tangent", 15, 1, 8, 2),
    Sketcher.Constraint("Vertical", 0),
    Sketcher.Constraint("Vertical", 4),
    Sketcher.Constraint("Vertical", 10),
    Sketcher.Constraint("Vertical", 14),
    Sketcher.Constraint("Coincident", 8, 3, 2, 3),
    Sketcher.Constraint("Coincident", 9, 3, 1, 3),
    Sketcher.Constraint("Coincident", 11, 3, 7, 3),
    Sketcher.Constraint("Coincident", 12, 3, 6, 3),
    Sketcher.Constraint("Coincident", 13, 3, 5, 3),
    Sketcher.Constraint("Equal", 1, 3),
    Sketcher.Constraint("Equal", 3, 5),
    Sketcher.Constraint("Equal", 2, 6),
    Sketcher.Constraint("Equal", 5, 7),
    Sketcher.Constraint("Equal", 13, 15),
    Sketcher.Constraint("Horizontal", 1, 3, 3, 3),
    Sketcher.Constraint("Horizontal", 5, 3, 7, 3),
    Sketcher.Constraint("Radius", 1, Q("6 mm")),
    Sketcher.Constraint("Radius", 9, Q("4 mm")),
    Sketcher.Constraint("Radius", 2, Q("71.25 mm")),
    Sketcher.Constraint("DistanceX", 2, 3, 1, 3, Q("17 mm")),
    Sketcher.Constraint("DistanceY", 2, 3, 6, 3, Q("47.5 mm")),
    Sketcher.Constraint("DistanceX", -1, 1, 1, 3, Q("111.05 mm")),
    Sketcher.Constraint("DistanceY", -1, 1, 1, 3, Q("157.629109 mm")),
])
pocket2 = body.newObject("PartDesign::Pocket", "Pocket001")
pocket2.Profile = sketch5
pocket2.Length = 2

# Sketch on XY plane
sketch6 = body.newObject("Sketcher::SketchObject", "Sketch005")
sketch6.AttachmentSupport = (doc.getObject("XY_Plane"), [""])
sketch6.MapMode = "FlatFace"
sketch6.AttachmentOffset = App.Placement(V(0, 0, -25), App.Rotation())
sketch6.addGeometry([
    Part.ArcOfCircle(Part.Circle(V(111, 118, 0), V(0, 0, 1), 18), math.radians(180), math.radians(360)),
    Part.ArcOfCircle(Part.Circle(V(111, 118, 0), V(0, 0, 1), 18), math.radians(0), math.radians(180)),
], False)
sketch6.addConstraint([
    Sketcher.Constraint("Tangent", 0, 1, 1, 2),
    Sketcher.Constraint("Coincident", 1, 1, 0, 2),
    Sketcher.Constraint("Horizontal", 1, 3, 0, 1),
    Sketcher.Constraint("Horizontal", 0, 1, 1, 1),
    Sketcher.Constraint("Radius", 0, Q("18.468279 mm")),
    Sketcher.Constraint("DistanceY", -1, 1, 0, 3, Q("118.382581 mm")),
    Sketcher.Constraint("DistanceX", -1, 1, 0, 3, Q("110.806704 mm")),
])
pad4 = body.newObject("PartDesign::Pad", "Pad003")
pad4.Profile = sketch6
pad4.Length = 20

# Sketch on XY plane
sketch7 = body.newObject("Sketcher::SketchObject", "Sketch006")
sketch7.AttachmentSupport = (doc.getObject("XY_Plane"), [""])
sketch7.MapMode = "FlatFace"
sketch7.AttachmentOffset = App.Placement(V(0, 0, -25), App.Rotation())
sketch7.addGeometry([
    Part.ArcOfCircle(Part.Circle(V(111, 118, 0), V(0, 0, 1), 13), math.radians(180), math.radians(360)),
    Part.ArcOfCircle(Part.Circle(V(111, 118, 0), V(0, 0, 1), 13), math.radians(0), math.radians(180)),
], False)
sketch7.addConstraint([
    Sketcher.Constraint("Tangent", 0, 1, 1, 2),
    Sketcher.Constraint("Coincident", 1, 1, 0, 2),
    Sketcher.Constraint("Horizontal", 1, 3, 0, 1),
    Sketcher.Constraint("Horizontal", 0, 1, 1, 1),
    Sketcher.Constraint("Radius", 0, Q("13.468279 mm")),
    Sketcher.Constraint("DistanceY", -1, 1, 0, 3, Q("118.382581 mm")),
    Sketcher.Constraint("DistanceX", -1, 1, 0, 3, Q("110.806704 mm")),
])
pocket3 = body.newObject("PartDesign::Pocket", "Pocket002")
pocket3.Profile = sketch7
pocket3.Length = 16
pocket3.Reversed = True

# Sketch on XY plane
sketch8 = body.newObject("Sketcher::SketchObject", "Sketch007")
sketch8.AttachmentSupport = (doc.getObject("XY_Plane"), [""])
sketch8.MapMode = "FlatFace"
sketch8.AttachmentOffset = App.Placement(V(0, 0, -25), App.Rotation())
sketch8.addGeometry([
    Part.ArcOfCircle(Part.Circle(V(48, 118, 0), V(0, 0, 1), 13), math.radians(180), math.radians(360)),
    Part.ArcOfCircle(Part.Circle(V(48, 118, 0), V(0, 0, 1), 13), math.radians(0), math.radians(180)),
], False)
sketch8.addConstraint([
    Sketcher.Constraint("Tangent", 0, 1, 1, 2),
    Sketcher.Constraint("Coincident", 1, 1, 0, 2),
    Sketcher.Constraint("Horizontal", 1, 3, 0, 1),
    Sketcher.Constraint("Horizontal", 0, 1, 1, 1),
    Sketcher.Constraint("Radius", 0, Q("13.468279 mm")),
    Sketcher.Constraint("DistanceY", -1, 1, 0, 3, Q("118.382581 mm")),
    Sketcher.Constraint("DistanceX", -1, 1, 0, 3, Q("48.486456 mm")),
])
pocket4 = body.newObject("PartDesign::Pocket", "Pocket003")
pocket4.Profile = sketch8
pocket4.Length = 25
pocket4.Reversed = True

# Sketch on XY plane
sketch9 = body.newObject("Sketcher::SketchObject", "Sketch008")
sketch9.AttachmentSupport = (doc.getObject("XY_Plane"), [""])
sketch9.MapMode = "FlatFace"
sketch9.AttachmentOffset = App.Placement(V(0, 0, -25), App.Rotation())
sketch9.addGeometry([
    Part.Circle(V(154.1, 185.9, 0), V(0, 0, 1), 6),  # 0
    Part.Circle(V(154.1, 185.9, 0), V(0, 0, 1), 4),  # 1
    Part.Circle(V(34, 185.9, 0), V(0, 0, 1), 6),  # 2
    Part.Circle(V(34, 185.9, 0), V(0, 0, 1), 4),  # 3
    Part.Circle(V(34, 50.9, 0), V(0, 0, 1), 6),  # 4
    Part.Circle(V(34, 50.9, 0), V(0, 0, 1), 4),  # 5
    Part.Circle(V(154.1, 50.9, 0), V(0, 0, 1), 6),  # 6
    Part.Circle(V(154.1, 50.9, 0), V(0, 0, 1), 4),  # 7
], False)
sketch9.addConstraint([
    Sketcher.Constraint("Coincident", 1, 3, 0, 3),
    Sketcher.Constraint("Coincident", 3, 3, 2, 3),
    Sketcher.Constraint("Coincident", 5, 3, 4, 3),
    Sketcher.Constraint("Coincident", 7, 3, 6, 3),
    Sketcher.Constraint("Equal", 0, 2),
    Sketcher.Constraint("Equal", 1, 3),
    Sketcher.Constraint("Equal", 2, 4),
    Sketcher.Constraint("Equal", 3, 5),
    Sketcher.Constraint("Equal", 4, 6),
    Sketcher.Constraint("Equal", 5, 7),
    Sketcher.Constraint("Horizontal", 1, 3, 2, 3),
    Sketcher.Constraint("Horizontal", 5, 3, 6, 3),
    Sketcher.Constraint("Vertical", 3, 3, 4, 3),
    Sketcher.Constraint("Vertical", 1, 3, 6, 3),
    Sketcher.Constraint("Diameter", 0, Q("12 mm")),
    Sketcher.Constraint("Diameter", 1, Q("8 mm")),
    Sketcher.Constraint("DistanceX", 2, 3, 0, 3, Q("120 mm")),
    Sketcher.Constraint("DistanceY", 4, 3, 2, 3, Q("135 mm")),
    Sketcher.Constraint("DistanceX", -1, 1, 0, 3, Q("154.05 mm")),
    Sketcher.Constraint("DistanceY", -1, 1, 0, 3, Q("185.882581 mm")),
])
pocket5 = body.newObject("PartDesign::Pocket", "Pocket004")
pocket5.Profile = sketch9
pocket5.Length = 6
pocket5.Reversed = True

# Sketch on XY plane
sketch10 = body.newObject("Sketcher::SketchObject", "Sketch009")
sketch10.AttachmentSupport = (doc.getObject("XY_Plane"), [""])
sketch10.MapMode = "FlatFace"
sketch10.AttachmentOffset = App.Placement(V(0, 0, -9), App.Rotation())
sketch10.addGeometry([
    Part.LineSegment(V(105, 104.9, 0), V(105, 100.8, 0)),  # 0
    Part.ArcOfCircle(Part.Circle(V(110.8, 118.4, 0), V(0, 0, 1), 18.5), math.radians(-172), math.radians(-108)),  # 1
    Part.LineSegment(V(92.5, 115.9, 0), V(108, 115.9, 0)),  # 2
    Part.ArcOfCircle(Part.Circle(V(108, 112.9, 0), V(0, 0, 1), 3), math.radians(0), math.radians(90)),  # 3
    Part.LineSegment(V(111, 112.9, 0), V(111, 110.9, 0)),  # 4
    Part.ArcOfCircle(Part.Circle(V(108, 110.9, 0), V(0, 0, 1), 3), math.radians(-90), math.radians(0)),  # 5
    Part.ArcOfCircle(Part.Circle(V(108, 104.9, 0), V(0, 0, 1), 3), math.radians(90), math.radians(156)),  # 6
    Part.ArcOfCircle(Part.Circle(V(108, 104.9, 0), V(0, 0, 1), 3), math.radians(156), math.radians(180)),  # 7
    Part.ArcOfCircle(Part.Circle(V(110.8, 118.4, 0), V(0, 0, 1), 18.5), math.radians(108), math.radians(172)),  # 8
    Part.LineSegment(V(105, 135.9, 0), V(105, 131.9, 0)),  # 9
    Part.ArcOfCircle(Part.Circle(V(108, 131.9, 0), V(0, 0, 1), 3), math.radians(180), math.radians(204)),  # 10
    Part.ArcOfCircle(Part.Circle(V(108, 131.9, 0), V(0, 0, 1), 3), math.radians(-156), math.radians(-90)),  # 11
    Part.ArcOfCircle(Part.Circle(V(108, 125.9, 0), V(0, 0, 1), 3), math.radians(0), math.radians(90)),  # 12
    Part.LineSegment(V(111, 125.9, 0), V(111, 123.9, 0)),  # 13
    Part.ArcOfCircle(Part.Circle(V(108, 123.9, 0), V(0, 0, 1), 3), math.radians(-90), math.radians(0)),  # 14
    Part.LineSegment(V(108, 120.9, 0), V(92.5, 120.9, 0)),  # 15
], False)
sketch10.addConstraint([
    Sketcher.Constraint("Coincident", 0, 2, 1, 2),
    Sketcher.Constraint("Coincident", 1, 1, 2, 1),
    Sketcher.Constraint("Tangent", 2, 2, 3, 2),
    Sketcher.Constraint("Tangent", 3, 1, 4, 1),
    Sketcher.Constraint("Tangent", 4, 2, 5, 2),
    Sketcher.Constraint("Tangent", 5, 1, 6, 1),
    Sketcher.Constraint("Tangent", 6, 2, 7, 1),
    Sketcher.Constraint("Tangent", 7, 2, 0, 1),
    Sketcher.Constraint("Coincident", 8, 1, 9, 1),
    Sketcher.Constraint("Tangent", 9, 2, 10, 1),
    Sketcher.Constraint("Tangent", 10, 2, 11, 1),
    Sketcher.Constraint("Tangent", 11, 2, 12, 2),
    Sketcher.Constraint("Tangent", 12, 1, 13, 1),
    Sketcher.Constraint("Tangent", 13, 2, 14, 2),
    Sketcher.Constraint("Tangent", 14, 1, 15, 1),
    Sketcher.Constraint("Coincident", 15, 2, 8, 2),
    Sketcher.Constraint("Vertical", 0),
    Sketcher.Constraint("Horizontal", 2),
    Sketcher.Constraint("Vertical", 4),
    Sketcher.Constraint("Vertical", 9),
    Sketcher.Constraint("Vertical", 13),
    Sketcher.Constraint("Horizontal", 15),
    Sketcher.Constraint("Coincident", 8, 3, 1, 3),
    Sketcher.Constraint("Equal", 3, 5),
    Sketcher.Constraint("Equal", 5, 6),
    Sketcher.Constraint("Equal", 6, 7),
    Sketcher.Constraint("Equal", 1, 8),
    Sketcher.Constraint("Equal", 7, 10),
    Sketcher.Constraint("Equal", 10, 11),
    Sketcher.Constraint("Equal", 11, 12),
    Sketcher.Constraint("Equal", 12, 14),
    Sketcher.Constraint("Vertical", 5, 3, 6, 3),
    Sketcher.Constraint("Vertical", 7, 3, 10, 3),
    Sketcher.Constraint("Vertical", 11, 3, 12, 3),
    Sketcher.Constraint("Vertical", 6, 2, 10, 2),
    Sketcher.Constraint("Vertical", 1, 1, 15, 2),
    Sketcher.Constraint("Equal", 0, 9),
    Sketcher.Constraint("Radius", 3, Q("3 mm")),
    Sketcher.Constraint("DistanceY", 4, 2, 4, 1, Q("2 mm")),
    Sketcher.Constraint("DistanceY", 3, 3, 10, 3, Q("19 mm")),
    Sketcher.Constraint("DistanceX", -1, 1, 3, 3, Q("108.05 mm")),
    Sketcher.Constraint("Radius", 1, Q("18.468279 mm")),
    Sketcher.Constraint("DistanceX", 2, 1, 2, 2, Q("15.541584 mm")),
    Sketcher.Constraint("DistanceY", -1, 1, 1, 3, Q("118.382581 mm")),
    Sketcher.Constraint("DistanceX", 15, 2, 10, 2, Q("12.795229 mm")),
])
pocket6 = body.newObject("PartDesign::Pocket", "Pocket005")
pocket6.Profile = sketch10
pocket6.Length = 9
doc.recompute()

fillet = body.newObject("PartDesign::Fillet", "Fillet")
fillet.Base = (pocket6, edges_at(pocket6, [
    (37.05, 94.679, -18),
    (37.05, 142.086, -18),
    (119.05, 118.383, -5),
    (119.05, 134.909, -11.5),
    (119.05, 101.856, -11.5),
    (119.05, 90.496, -18),
    (126.512, 108.666, -18),
]))
fillet.Radius = 3
doc.recompute()

fillet2 = body.newObject("PartDesign::Fillet", "Fillet001")
fillet2.Base = (fillet, edges_at(fillet, [(94.05, 28.383, -25)]))
fillet2.Radius = 2

# Sketch on XY plane
sketch11 = body.newObject("Sketcher::SketchObject", "Sketch010")
sketch11.AttachmentSupport = (doc.getObject("XY_Plane"), [""])
sketch11.MapMode = "FlatFace"
sketch11.addGeometry([
    Part.LineSegment(V(79, 226, 0), V(61, 208, 0)),  # 0
    Part.LineSegment(V(61, 208, 0), V(127, 208, 0)),  # 1
    Part.LineSegment(V(127, 208, 0), V(109, 226, 0)),  # 2
    Part.LineSegment(V(109, 226, 0), V(109, 238, 0)),  # 3
    Part.ArcOfCircle(Part.Circle(V(94, 238, 0), V(0, 0, 1), 15), math.radians(0), math.radians(180)),  # 4
    Part.LineSegment(V(79, 238, 0), V(79, 226, 0)),  # 5
    Part.Circle(V(94, 238, 0), V(0, 0, 1), 6),  # 6
    Part.LineSegment(V(127, 28, 0), V(61, 28, 0)),  # 7
    Part.LineSegment(V(61, 28, 0), V(79, 10, 0)),  # 8
    Part.LineSegment(V(79, 10, 0), V(79, -2, 0)),  # 9
    Part.ArcOfCircle(Part.Circle(V(94, -2, 0), V(0, 0, 1), 15), math.radians(180), math.radians(360)),  # 10
    Part.LineSegment(V(109, -2, 0), V(109, 10, 0)),  # 11
    Part.LineSegment(V(109, 10, 0), V(127, 28, 0)),  # 12
    Part.Circle(V(94, -2, 0), V(0, 0, 1), 6),  # 13
], False)
sketch11.addConstraint([
    Sketcher.Constraint("Coincident", 0, 2, 1, 1),
    Sketcher.Constraint("Coincident", 1, 2, 2, 1),
    Sketcher.Constraint("Coincident", 2, 2, 3, 1),
    Sketcher.Constraint("Tangent", 3, 2, 4, 1),
    Sketcher.Constraint("Tangent", 4, 2, 5, 1),
    Sketcher.Constraint("Coincident", 5, 2, 0, 1),
    Sketcher.Constraint("Coincident", 7, 2, 8, 1),
    Sketcher.Constraint("Coincident", 8, 2, 9, 1),
    Sketcher.Constraint("Tangent", 9, 2, 10, 1),
    Sketcher.Constraint("Tangent", 10, 2, 11, 1),
    Sketcher.Constraint("Coincident", 11, 2, 12, 1),
    Sketcher.Constraint("Coincident", 12, 2, 7, 1),
    Sketcher.Constraint("Horizontal", 1),
    Sketcher.Constraint("Vertical", 3),
    Sketcher.Constraint("Vertical", 5),
    Sketcher.Constraint("Horizontal", 7),
    Sketcher.Constraint("Vertical", 9),
    Sketcher.Constraint("Vertical", 11),
    Sketcher.Constraint("Coincident", 6, 3, 4, 3),
    Sketcher.Constraint("Coincident", 13, 3, 10, 3),
    Sketcher.Constraint("Equal", 4, 10),
    Sketcher.Constraint("Equal", 6, 13),
    Sketcher.Constraint("Perpendicular", 0, 2),
    Sketcher.Constraint("Parallel", 2, 8),
    Sketcher.Constraint("Perpendicular", 8, 12),
    Sketcher.Constraint("Horizontal", 2, 2, 5, 2),
    Sketcher.Constraint("Horizontal", 8, 2, 11, 2),
    Sketcher.Constraint("Vertical", 6, 3, 10, 3),
    Sketcher.Constraint("Vertical", 0, 2, 7, 2),
    Sketcher.Constraint("Vertical", 1, 2, 12, 2),
    Sketcher.Constraint("Equal", 5, 9),
    Sketcher.Constraint("Diameter", 6, Q("12 mm")),
    Sketcher.Constraint("Radius", 4, Q("15 mm")),
    Sketcher.Constraint("DistanceX", 1, 1, 1, 2, Q("66 mm")),
    Sketcher.Constraint("DistanceY", 3, 1, 3, 2, Q("12 mm")),
    Sketcher.Constraint("DistanceY", 10, 3, 4, 3, Q("240 mm")),
    Sketcher.Constraint("DistanceX", -1, 1, 4, 3, Q("94.05 mm")),
    Sketcher.Constraint("DistanceY", -1, 1, 4, 3, Q("238.382581 mm")),
])
pad5 = body.newObject("PartDesign::Pad", "Pad004")
pad5.Profile = sketch11
pad5.Type = "UpToLast"
pad5.Reversed = True

doc.recompute()
